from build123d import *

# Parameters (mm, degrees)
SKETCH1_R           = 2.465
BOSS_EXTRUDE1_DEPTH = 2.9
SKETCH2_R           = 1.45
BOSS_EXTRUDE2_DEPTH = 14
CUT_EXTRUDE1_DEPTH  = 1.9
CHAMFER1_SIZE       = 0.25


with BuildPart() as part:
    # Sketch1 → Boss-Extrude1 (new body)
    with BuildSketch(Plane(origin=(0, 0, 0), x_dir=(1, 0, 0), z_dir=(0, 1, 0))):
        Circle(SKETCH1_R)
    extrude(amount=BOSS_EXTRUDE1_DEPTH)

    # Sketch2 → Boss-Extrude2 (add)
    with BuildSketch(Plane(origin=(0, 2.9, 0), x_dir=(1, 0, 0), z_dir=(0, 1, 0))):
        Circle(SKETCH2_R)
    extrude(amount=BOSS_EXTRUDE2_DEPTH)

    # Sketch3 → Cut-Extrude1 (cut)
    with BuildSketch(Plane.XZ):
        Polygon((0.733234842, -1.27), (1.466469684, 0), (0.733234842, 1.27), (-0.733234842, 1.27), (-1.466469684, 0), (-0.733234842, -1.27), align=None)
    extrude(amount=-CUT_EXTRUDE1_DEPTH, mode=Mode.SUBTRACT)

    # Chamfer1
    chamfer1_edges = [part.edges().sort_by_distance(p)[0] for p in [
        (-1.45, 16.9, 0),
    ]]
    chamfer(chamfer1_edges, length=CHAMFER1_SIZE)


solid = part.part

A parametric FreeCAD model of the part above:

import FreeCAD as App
import Part
import Sketcher
Q = App.Units.Quantity


def edges_at(feature, points):
    """Names of the edges that pass closest to the given points."""
    edges = feature.Shape.Edges
    near = lambda p: min(range(len(edges)), key=lambda i: edges[i].distToShape(Part.Vertex(*p))[0])
    return sorted({f"Edge{near(p) + 1}" for p in points})


def add_polygon(sketch, points):
    """Adds a closed chain of lines whose ends are joined by coincident constraints."""
    first, n = sketch.GeometryCount, len(points)
    for a, b in zip(points, points[1:] + points[:1]):
        sketch.addGeometry(Part.LineSegment(App.Vector(*a, 0), App.Vector(*b, 0)), False)
    for i in range(n):
        sketch.addConstraint(Sketcher.Constraint("Coincident", first + i, 2, first + (i + 1) % n, 1))

doc = App.newDocument("Part")
body = doc.addObject("PartDesign::Body", "Body")

# Sketch on XZ plane
sketch1 = body.newObject("Sketcher::SketchObject", "Sketch")
sketch1.AttachmentSupport = (doc.getObject("XZ_Plane"), [""])
sketch1.MapMode = "FlatFace"
sketch1.addGeometry(Part.Circle(App.Vector(0, 0, 0), App.Vector(0, 0, 1), 2.465), False)
sketch1.addConstraint([
    Sketcher.Constraint("Coincident", 0, 3, -1, 1),
    Sketcher.Constraint("Diameter", 0, Q("4.93 mm")),
])
pad1 = body.newObject("PartDesign::Pad", "Pad")
pad1.Profile = sketch1
pad1.Length = 2.9
pad1.Reversed = True

# Sketch on XZ plane
sketch2 = body.newObject("Sketcher::SketchObject", "Sketch001")
sketch2.AttachmentSupport = (doc.getObject("XZ_Plane"), [""])
sketch2.MapMode = "FlatFace"
sketch2.AttachmentOffset = App.Placement(App.Vector(0, 0, -2.9), App.Rotation())
sketch2.addGeometry(Part.Circle(App.Vector(0, 0, 0), App.Vector(0, 0, 1), 1.45), False)
sketch2.addConstraint([
    Sketcher.Constraint("Coincident", 0, 3, -1, 1),
    Sketcher.Constraint("Diameter", 0, Q("2.9 mm")),
])
pad2 = body.newObject("PartDesign::Pad", "Pad001")
pad2.Profile = sketch2
pad2.Length = 14
pad2.Reversed = True

# Sketch on XZ plane
sketch3 = body.newObject("Sketcher::SketchObject", "Sketch002")
sketch3.AttachmentSupport = (doc.getObject("XZ_Plane"), [""])
sketch3.MapMode = "FlatFace"
add_polygon(sketch3, [(0.733235, -1.27), (1.46647, 0), (0.733235, 1.27), (-0.733235, 1.27), (-1.46647, 0), (-0.733235, -1.27)])  # lines 0-5
sketch3.addConstraint([
    Sketcher.Constraint("Horizontal", 2),
    Sketcher.Constraint("Horizontal", 5),
    Sketcher.Constraint("Symmetric", 0, 2, 3, 2, -1, 1),
    Sketcher.Constraint("Symmetric", 1, 2, 4, 2, -1, 1),
    Sketcher.Constraint("PointOnObject", 0, 2, -1),
    Sketcher.Constraint("Parallel", 0, 3),
    Sketcher.Constraint("Vertical", 2, 2, 4, 2),
    Sketcher.Constraint("Angle", 0, Q("60 deg")),
    Sketcher.Constraint("DistanceY", -1, 1, 1, 2, Q("1.27 mm")),
    Sketcher.Constraint("DistanceX", 2, 2, 2, 1, Q("1.46647 mm")),
])
pocket1 = body.newObject("PartDesign::Pocket", "Pocket")
pocket1.Profile = sketch3
pocket1.Length = 1.9
doc.recompute()

chamfer = body.newObject("PartDesign::Chamfer", "Chamfer")
chamfer.Base = (pocket1, edges_at(pocket1, [(-1.45, 16.9, 0)]))
chamfer.Size = 0.25

doc.recompute()
